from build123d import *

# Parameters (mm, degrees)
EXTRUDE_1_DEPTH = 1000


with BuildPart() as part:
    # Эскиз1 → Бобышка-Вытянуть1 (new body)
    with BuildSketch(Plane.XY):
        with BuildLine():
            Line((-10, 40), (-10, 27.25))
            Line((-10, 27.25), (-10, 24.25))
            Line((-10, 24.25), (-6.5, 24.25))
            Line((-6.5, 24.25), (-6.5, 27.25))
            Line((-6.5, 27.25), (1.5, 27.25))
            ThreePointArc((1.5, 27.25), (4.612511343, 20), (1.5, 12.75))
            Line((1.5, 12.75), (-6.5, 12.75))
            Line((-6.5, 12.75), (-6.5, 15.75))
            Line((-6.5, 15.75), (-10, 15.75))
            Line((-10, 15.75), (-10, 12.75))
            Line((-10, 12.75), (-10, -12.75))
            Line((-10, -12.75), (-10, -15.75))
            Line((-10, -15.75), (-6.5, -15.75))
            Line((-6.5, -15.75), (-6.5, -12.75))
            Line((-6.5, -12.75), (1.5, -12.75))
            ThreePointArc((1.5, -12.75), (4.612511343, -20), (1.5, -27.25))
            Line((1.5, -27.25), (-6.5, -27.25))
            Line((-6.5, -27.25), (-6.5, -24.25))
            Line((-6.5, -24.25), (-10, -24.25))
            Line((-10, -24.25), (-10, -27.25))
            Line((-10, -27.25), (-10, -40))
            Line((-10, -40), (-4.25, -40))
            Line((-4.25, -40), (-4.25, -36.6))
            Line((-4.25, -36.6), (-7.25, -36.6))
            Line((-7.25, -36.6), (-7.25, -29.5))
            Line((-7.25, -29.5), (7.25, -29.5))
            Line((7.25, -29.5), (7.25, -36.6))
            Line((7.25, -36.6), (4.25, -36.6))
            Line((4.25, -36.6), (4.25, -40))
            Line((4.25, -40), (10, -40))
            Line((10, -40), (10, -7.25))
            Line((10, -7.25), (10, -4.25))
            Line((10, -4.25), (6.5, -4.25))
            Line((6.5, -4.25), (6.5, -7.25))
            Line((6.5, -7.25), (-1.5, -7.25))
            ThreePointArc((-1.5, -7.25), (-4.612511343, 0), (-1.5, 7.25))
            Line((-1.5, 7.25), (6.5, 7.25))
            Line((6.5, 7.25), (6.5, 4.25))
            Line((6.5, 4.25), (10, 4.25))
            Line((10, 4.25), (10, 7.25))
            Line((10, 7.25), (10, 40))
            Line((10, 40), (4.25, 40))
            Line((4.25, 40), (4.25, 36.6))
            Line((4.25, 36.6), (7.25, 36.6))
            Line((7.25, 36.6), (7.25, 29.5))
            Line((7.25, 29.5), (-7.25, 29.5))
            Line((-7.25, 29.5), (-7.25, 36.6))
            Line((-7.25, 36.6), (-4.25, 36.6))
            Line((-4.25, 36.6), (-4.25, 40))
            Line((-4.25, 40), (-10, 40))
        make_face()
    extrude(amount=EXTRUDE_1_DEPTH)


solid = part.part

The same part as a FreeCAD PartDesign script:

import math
import FreeCAD as App
import Part
import Sketcher

doc = App.newDocument("Part")
params = doc.addObject("Spreadsheet::Sheet", "Params")
for row, (alias, value) in enumerate([
    ("sketch1_radius", "10 mm"),
    ("sketch1_width", "8 mm"),
    ("sketch1_width2", "3 mm"),
    ("sketch1_width3", "3.5 mm"),
    ("sketch1_width4", "14.5 mm"),
    ("pad1_length", "1000 mm"),
], start=1):
    params.set(f"A{row}", alias)
    params.set(f"B{row}", "=" + value)
    params.setAlias(f"B{row}", alias)

body = doc.addObject("PartDesign::Body", "Body")

# Sketch on XY plane
sketch1 = doc.addObject("Sketcher::SketchObject", "Sketch")
body.addObject(sketch1)
sketch1.AttachmentSupport = (doc.XY_Plane, [""])
sketch1.MapMode = "FlatFace"
sketch1.addGeometry([
    Part.LineSegment(App.Vector(-10, 40, 0), App.Vector(-10, 24.2, 0)),  # 0
    Part.LineSegment(App.Vector(-10, 24.2, 0), App.Vector(-6.5, 24.2, 0)),  # 1
    Part.LineSegment(App.Vector(-6.5, 24.2, 0), App.Vector(-6.5, 27.2, 0)),  # 2
    Part.LineSegment(App.Vector(-6.5, 27.2, 0), App.Vector(1.5, 27.2, 0)),  # 3
    Part.ArcOfCircle(Part.Circle(App.Vector(-5.4, 20, 0), App.Vector(0, 0, 1), 10), math.radians(-46), math.radians(46)),  # 4
    Part.LineSegment(App.Vector(1.5, 12.8, 0), App.Vector(-6.5, 12.8, 0)),  # 5
    Part.LineSegment(App.Vector(-6.5, 12.8, 0), App.Vector(-6.5, 15.8, 0)),  # 6
    Part.LineSegment(App.Vector(-6.5, 15.8, 0), App.Vector(-10, 15.8, 0)),  # 7
    Part.LineSegment(App.Vector(-10, 15.8, 0), App.Vector(-10, -15.8, 0)),  # 8
    Part.LineSegment(App.Vector(-10, -15.8, 0), App.Vector(-6.5, -15.8, 0)),  # 9
    Part.LineSegment(App.Vector(-6.5, -15.8, 0), App.Vector(-6.5, -12.8, 0)),  # 10
    Part.LineSegment(App.Vector(-6.5, -12.8, 0), App.Vector(1.5, -12.8, 0)),  # 11
    Part.ArcOfCircle(Part.Circle(App.Vector(-5.4, -20, 0), App.Vector(0, 0, 1), 10), math.radians(-46), math.radians(46)),  # 12
    Part.LineSegment(App.Vector(1.5, -27.2, 0), App.Vector(-6.5, -27.2, 0)),  # 13
    Part.LineSegment(App.Vector(-6.5, -27.2, 0), App.Vector(-6.5, -24.2, 0)),  # 14
    Part.LineSegment(App.Vector(-6.5, -24.2, 0), App.Vector(-10, -24.2, 0)),  # 15
    Part.LineSegment(App.Vector(-10, -24.2, 0), App.Vector(-10, -40, 0)),  # 16
    Part.LineSegment(App.Vector(-10, -40, 0), App.Vector(-4.2, -40, 0)),  # 17
    Part.LineSegment(App.Vector(-4.2, -40, 0), App.Vector(-4.2, -36.6, 0)),  # 18
    Part.LineSegment(App.Vector(-4.2, -36.6, 0), App.Vector(-7.2, -36.6, 0)),  # 19
    Part.LineSegment(App.Vector(-7.2, -36.6, 0), App.Vector(-7.2, -29.5, 0)),  # 20
    Part.LineSegment(App.Vector(-7.2, -29.5, 0), App.Vector(7.2, -29.5, 0)),  # 21
    Part.LineSegment(App.Vector(7.2, -29.5, 0), App.Vector(7.2, -36.6, 0)),  # 22
    Part.LineSegment(App.Vector(7.2, -36.6, 0), App.Vector(4.2, -36.6, 0)),  # 23
    Part.LineSegment(App.Vector(4.2, -36.6, 0), App.Vector(4.2, -40, 0)),  # 24
    Part.LineSegment(App.Vector(4.2, -40, 0), App.Vector(10, -40, 0)),  # 25
    Part.LineSegment(App.Vector(10, -40, 0), App.Vector(10, -4.2, 0)),  # 26
    Part.LineSegment(App.Vector(10, -4.2, 0), App.Vector(6.5, -4.2, 0)),  # 27
    Part.LineSegment(App.Vector(6.5, -4.2, 0), App.Vector(6.5, -7.2, 0)),  # 28
    Part.LineSegment(App.Vector(6.5, -7.2, 0), App.Vector(-1.5, -7.2, 0)),  # 29
    Part.ArcOfCircle(Part.Circle(App.Vector(5.4, 0, 0), App.Vector(0, 0, 1), 10), math.radians(134), math.radians(226)),  # 30
    Part.LineSegment(App.Vector(-1.5, 7.2, 0), App.Vector(6.5, 7.2, 0)),  # 31
    Part.LineSegment(App.Vector(6.5, 7.2, 0), App.Vector(6.5, 4.2, 0)),  # 32
    Part.LineSegment(App.Vector(6.5, 4.2, 0), App.Vector(10, 4.2, 0)),  # 33
    Part.LineSegment(App.Vector(10, 4.2, 0), App.Vector(10, 40, 0)),  # 34
    Part.LineSegment(App.Vector(10, 40, 0), App.Vector(4.2, 40, 0)),  # 35
    Part.LineSegment(App.Vector(4.2, 40, 0), App.Vector(4.2, 36.6, 0)),  # 36
    Part.LineSegment(App.Vector(4.2, 36.6, 0), App.Vector(7.2, 36.6, 0)),  # 37
    Part.LineSegment(App.Vector(7.2, 36.6, 0), App.Vector(7.2, 29.5, 0)),  # 38
    Part.LineSegment(App.Vector(7.2, 29.5, 0), App.Vector(-7.2, 29.5, 0)),  # 39
    Part.LineSegment(App.Vector(-7.2, 29.5, 0), App.Vector(-7.2, 36.6, 0)),  # 40
    Part.LineSegment(App.Vector(-7.2, 36.6, 0), App.Vector(-4.2, 36.6, 0)),  # 41
    Part.LineSegment(App.Vector(-4.2, 36.6, 0), App.Vector(-4.2, 40, 0)),  # 42
    Part.LineSegment(App.Vector(-4.2, 40, 0), App.Vector(-10, 40, 0)),  # 43
], False)
sketch1.addConstraint([
    Sketcher.Constraint("Coincident", 0, 2, 1, 1),
    Sketcher.Constraint("Coincident", 1, 2, 2, 1),
    Sketcher.Constraint("Coincident", 2, 2, 3, 1),
    Sketcher.Constraint("Coincident", 3, 2, 4, 2),
    Sketcher.Constraint("Coincident", 4, 1, 5, 1),
    Sketcher.Constraint("Coincident", 5, 2, 6, 1),
    Sketcher.Constraint("Coincident", 6, 2, 7, 1),
    Sketcher.Constraint("Coincident", 7, 2, 8, 1),
    Sketcher.Constraint("Coincident", 8, 2, 9, 1),
    Sketcher.Constraint("Coincident", 9, 2, 10, 1),
    Sketcher.Constraint("Coincident", 10, 2, 11, 1),
    Sketcher.Constraint("Coincident", 11, 2, 12, 2),
    Sketcher.Constraint("Coincident", 12, 1, 13, 1),
    Sketcher.Constraint("Coincident", 13, 2, 14, 1),
    Sketcher.Constraint("Coincident", 14, 2, 15, 1),
    Sketcher.Constraint("Coincident", 15, 2, 16, 1),
    Sketcher.Constraint("Coincident", 16, 2, 17, 1),
    Sketcher.Constraint("Coincident", 17, 2, 18, 1),
    Sketcher.Constraint("Coincident", 18, 2, 19, 1),
    Sketcher.Constraint("Coincident", 19, 2, 20, 1),
    Sketcher.Constraint("Coincident", 20, 2, 21, 1),
    Sketcher.Constraint("Coincident", 21, 2, 22, 1),
    Sketcher.Constraint("Coincident", 22, 2, 23, 1),
    Sketcher.Constraint("Coincident", 23, 2, 24, 1),
    Sketcher.Constraint("Coincident", 24, 2, 25, 1),
    Sketcher.Constraint("Coincident", 25, 2, 26, 1),
    Sketcher.Constraint("Coincident", 26, 2, 27, 1),
    Sketcher.Constraint("Coincident", 27, 2, 28, 1),
    Sketcher.Constraint("Coincident", 28, 2, 29, 1),
    Sketcher.Constraint("Coincident", 29, 2, 30, 2),
    Sketcher.Constraint("Coincident", 30, 1, 31, 1),
    Sketcher.Constraint("Coincident", 31, 2, 32, 1),
    Sketcher.Constraint("Coincident", 32, 2, 33, 1),
    Sketcher.Constraint("Coincident", 33, 2, 34, 1),
    Sketcher.Constraint("Coincident", 34, 2, 35, 1),
    Sketcher.Constraint("Coincident", 35, 2, 36, 1),
    Sketcher.Constraint("Coincident", 36, 2, 37, 1),
    Sketcher.Constraint("Coincident", 37, 2, 38, 1),
    Sketcher.Constraint("Coincident", 38, 2, 39, 1),
    Sketcher.Constraint("Coincident", 39, 2, 40, 1),
    Sketcher.Constraint("Coincident", 40, 2, 41, 1),
    Sketcher.Constraint("Coincident", 41, 2, 42, 1),
    Sketcher.Constraint("Coincident", 42, 2, 43, 1),
    Sketcher.Constraint("Coincident", 43, 2, 0, 1),
    Sketcher.Constraint("Vertical", 0),
    Sketcher.Constraint("Horizontal", 1),
    Sketcher.Constraint("Vertical", 2),
    Sketcher.Constraint("Horizontal", 3),
    Sketcher.Constraint("Horizontal", 5),
    Sketcher.Constraint("Vertical", 6),
    Sketcher.Constraint("Horizontal", 7),
    Sketcher.Constraint("Vertical", 8),
    Sketcher.Constraint("Horizontal", 9),
    Sketcher.Constraint("Vertical", 10),
    Sketcher.Constraint("Horizontal", 11),
    Sketcher.Constraint("Horizontal", 13),
    Sketcher.Constraint("Vertical", 14),
    Sketcher.Constraint("Horizontal", 15),
    Sketcher.Constraint("Vertical", 16),
    Sketcher.Constraint("Horizontal", 17),
    Sketcher.Constraint("Vertical", 18),
    Sketcher.Constraint("Horizontal", 19),
    Sketcher.Constraint("Vertical", 20),
    Sketcher.Constraint("Horizontal", 21),
    Sketcher.Constraint("Vertical", 22),
    Sketcher.Constraint("Horizontal", 23),
    Sketcher.Constraint("Vertical", 24),
    Sketcher.Constraint("Horizontal", 25),
    Sketcher.Constraint("Vertical", 26),
    Sketcher.Constraint("Horizontal", 27),
    Sketcher.Constraint("Vertical", 28),
    Sketcher.Constraint("Horizontal", 29),
    Sketcher.Constraint("Horizontal", 31),
    Sketcher.Constraint("Vertical", 32),
    Sketcher.Constraint("Horizontal", 33),
    Sketcher.Constraint("Vertical", 34),
    Sketcher.Constraint("Horizontal", 35),
    Sketcher.Constraint("Vertical", 36),
    Sketcher.Constraint("Horizontal", 37),
    Sketcher.Constraint("Vertical", 38),
    Sketcher.Constraint("Horizontal", 39),
    Sketcher.Constraint("Vertical", 40),
    Sketcher.Constraint("Horizontal", 41),
    Sketcher.Constraint("Vertical", 42),
    Sketcher.Constraint("Horizontal", 43),
    Sketcher.Constraint("Equal", 4, 12),
    Sketcher.Constraint("Equal", 12, 30),
    Sketcher.Constraint("Symmetric", 16, 2, 34, 2, -1, 1),
    Sketcher.Constraint("Symmetric", 18, 2, 36, 2, -1, 1),
    Sketcher.Constraint("Symmetric", 20, 2, 38, 2, -1, 1),
    Sketcher.Constraint("Symmetric", 22, 2, 40, 2, -1, 1),
    Sketcher.Constraint("Symmetric", 24, 2, 42, 2, -1, 1),
    Sketcher.Constraint("Symmetric", 19, 2, 22, 2, -2),
    Sketcher.Constraint("Symmetric", 17, 2, 24, 2, -2),
    Sketcher.Constraint("Symmetric", 4, 3, 12, 3, -1),
    Sketcher.Constraint("Symmetric", 6, 2, 9, 2, -1),
    Sketcher.Constraint("Symmetric", 2, 2, 13, 2, -1),
    Sketcher.Constraint("Symmetric", 0, 2, 15, 2, -1),
    Sketcher.Constraint("Symmetric", 29, 2, 30, 1, -1),
    Sketcher.Constraint("Symmetric", 27, 2, 32, 2, -1),
    Sketcher.Constraint("Vertical", 3, 2, 4, 1),
    Sketcher.Constraint("Vertical", 2, 2, 5, 2),
    Sketcher.Constraint("Vertical", 0, 2, 7, 2),
    Sketcher.Constraint("Vertical", 4, 1, 11, 2),
    Sketcher.Constraint("Vertical", 26, 2, 33, 2),
    Sketcher.Constraint("Equal", 15, 27),
    Sketcher.Constraint("Equal", 13, 29),
    Sketcher.Constraint("Equal", 41, 2),
    Sketcher.Constraint("Equal", 2, 6),
    Sketcher.Constraint("Equal", 14, 28),
    Sketcher.Constraint("Radius", 4, 10.0),
    Sketcher.Constraint("DistanceX", 3, 1, 3, 2, 8.0),
    Sketcher.Constraint("DistanceX", 19, 2, 19, 1, 3.0),
    Sketcher.Constraint("DistanceX", 1, 1, 1, 2, 3.5),
    Sketcher.Constraint("DistanceX", 21, 1, 21, 2, 14.5),
    Sketcher.Constraint("DistanceY", 8, 2, 8, 1, 31.5),
    Sketcher.Constraint("DistanceY", 18, 1, 18, 2, 3.4),
    Sketcher.Constraint("DistanceY", 20, 1, 20, 2, 7.1),
    Sketcher.Constraint("DistanceY", -1, 1, 4, 3, 20.0),
    Sketcher.Constraint("DistanceX", 0, 2, -1, 1, 10.0),
    Sketcher.Constraint("DistanceY", 16, 2, -1, 1, 40.0),
    Sketcher.Constraint("DistanceY", 26, 2, 4, 1, 17.0),
])
sketch1.setExpression("Constraints[110]", "Params.sketch1_radius")
sketch1.setExpression("Constraints[111]", "Params.sketch1_width")
sketch1.setExpression("Constraints[112]", "Params.sketch1_width2")
sketch1.setExpression("Constraints[113]", "Params.sketch1_width3")
sketch1.setExpression("Constraints[114]", "Params.sketch1_width4")
pad1 = doc.addObject("PartDesign::Pad", "Pad")
body.addObject(pad1)
pad1.Profile = sketch1
pad1.setExpression("Length", "Params.pad1_length")

doc.recompute()
